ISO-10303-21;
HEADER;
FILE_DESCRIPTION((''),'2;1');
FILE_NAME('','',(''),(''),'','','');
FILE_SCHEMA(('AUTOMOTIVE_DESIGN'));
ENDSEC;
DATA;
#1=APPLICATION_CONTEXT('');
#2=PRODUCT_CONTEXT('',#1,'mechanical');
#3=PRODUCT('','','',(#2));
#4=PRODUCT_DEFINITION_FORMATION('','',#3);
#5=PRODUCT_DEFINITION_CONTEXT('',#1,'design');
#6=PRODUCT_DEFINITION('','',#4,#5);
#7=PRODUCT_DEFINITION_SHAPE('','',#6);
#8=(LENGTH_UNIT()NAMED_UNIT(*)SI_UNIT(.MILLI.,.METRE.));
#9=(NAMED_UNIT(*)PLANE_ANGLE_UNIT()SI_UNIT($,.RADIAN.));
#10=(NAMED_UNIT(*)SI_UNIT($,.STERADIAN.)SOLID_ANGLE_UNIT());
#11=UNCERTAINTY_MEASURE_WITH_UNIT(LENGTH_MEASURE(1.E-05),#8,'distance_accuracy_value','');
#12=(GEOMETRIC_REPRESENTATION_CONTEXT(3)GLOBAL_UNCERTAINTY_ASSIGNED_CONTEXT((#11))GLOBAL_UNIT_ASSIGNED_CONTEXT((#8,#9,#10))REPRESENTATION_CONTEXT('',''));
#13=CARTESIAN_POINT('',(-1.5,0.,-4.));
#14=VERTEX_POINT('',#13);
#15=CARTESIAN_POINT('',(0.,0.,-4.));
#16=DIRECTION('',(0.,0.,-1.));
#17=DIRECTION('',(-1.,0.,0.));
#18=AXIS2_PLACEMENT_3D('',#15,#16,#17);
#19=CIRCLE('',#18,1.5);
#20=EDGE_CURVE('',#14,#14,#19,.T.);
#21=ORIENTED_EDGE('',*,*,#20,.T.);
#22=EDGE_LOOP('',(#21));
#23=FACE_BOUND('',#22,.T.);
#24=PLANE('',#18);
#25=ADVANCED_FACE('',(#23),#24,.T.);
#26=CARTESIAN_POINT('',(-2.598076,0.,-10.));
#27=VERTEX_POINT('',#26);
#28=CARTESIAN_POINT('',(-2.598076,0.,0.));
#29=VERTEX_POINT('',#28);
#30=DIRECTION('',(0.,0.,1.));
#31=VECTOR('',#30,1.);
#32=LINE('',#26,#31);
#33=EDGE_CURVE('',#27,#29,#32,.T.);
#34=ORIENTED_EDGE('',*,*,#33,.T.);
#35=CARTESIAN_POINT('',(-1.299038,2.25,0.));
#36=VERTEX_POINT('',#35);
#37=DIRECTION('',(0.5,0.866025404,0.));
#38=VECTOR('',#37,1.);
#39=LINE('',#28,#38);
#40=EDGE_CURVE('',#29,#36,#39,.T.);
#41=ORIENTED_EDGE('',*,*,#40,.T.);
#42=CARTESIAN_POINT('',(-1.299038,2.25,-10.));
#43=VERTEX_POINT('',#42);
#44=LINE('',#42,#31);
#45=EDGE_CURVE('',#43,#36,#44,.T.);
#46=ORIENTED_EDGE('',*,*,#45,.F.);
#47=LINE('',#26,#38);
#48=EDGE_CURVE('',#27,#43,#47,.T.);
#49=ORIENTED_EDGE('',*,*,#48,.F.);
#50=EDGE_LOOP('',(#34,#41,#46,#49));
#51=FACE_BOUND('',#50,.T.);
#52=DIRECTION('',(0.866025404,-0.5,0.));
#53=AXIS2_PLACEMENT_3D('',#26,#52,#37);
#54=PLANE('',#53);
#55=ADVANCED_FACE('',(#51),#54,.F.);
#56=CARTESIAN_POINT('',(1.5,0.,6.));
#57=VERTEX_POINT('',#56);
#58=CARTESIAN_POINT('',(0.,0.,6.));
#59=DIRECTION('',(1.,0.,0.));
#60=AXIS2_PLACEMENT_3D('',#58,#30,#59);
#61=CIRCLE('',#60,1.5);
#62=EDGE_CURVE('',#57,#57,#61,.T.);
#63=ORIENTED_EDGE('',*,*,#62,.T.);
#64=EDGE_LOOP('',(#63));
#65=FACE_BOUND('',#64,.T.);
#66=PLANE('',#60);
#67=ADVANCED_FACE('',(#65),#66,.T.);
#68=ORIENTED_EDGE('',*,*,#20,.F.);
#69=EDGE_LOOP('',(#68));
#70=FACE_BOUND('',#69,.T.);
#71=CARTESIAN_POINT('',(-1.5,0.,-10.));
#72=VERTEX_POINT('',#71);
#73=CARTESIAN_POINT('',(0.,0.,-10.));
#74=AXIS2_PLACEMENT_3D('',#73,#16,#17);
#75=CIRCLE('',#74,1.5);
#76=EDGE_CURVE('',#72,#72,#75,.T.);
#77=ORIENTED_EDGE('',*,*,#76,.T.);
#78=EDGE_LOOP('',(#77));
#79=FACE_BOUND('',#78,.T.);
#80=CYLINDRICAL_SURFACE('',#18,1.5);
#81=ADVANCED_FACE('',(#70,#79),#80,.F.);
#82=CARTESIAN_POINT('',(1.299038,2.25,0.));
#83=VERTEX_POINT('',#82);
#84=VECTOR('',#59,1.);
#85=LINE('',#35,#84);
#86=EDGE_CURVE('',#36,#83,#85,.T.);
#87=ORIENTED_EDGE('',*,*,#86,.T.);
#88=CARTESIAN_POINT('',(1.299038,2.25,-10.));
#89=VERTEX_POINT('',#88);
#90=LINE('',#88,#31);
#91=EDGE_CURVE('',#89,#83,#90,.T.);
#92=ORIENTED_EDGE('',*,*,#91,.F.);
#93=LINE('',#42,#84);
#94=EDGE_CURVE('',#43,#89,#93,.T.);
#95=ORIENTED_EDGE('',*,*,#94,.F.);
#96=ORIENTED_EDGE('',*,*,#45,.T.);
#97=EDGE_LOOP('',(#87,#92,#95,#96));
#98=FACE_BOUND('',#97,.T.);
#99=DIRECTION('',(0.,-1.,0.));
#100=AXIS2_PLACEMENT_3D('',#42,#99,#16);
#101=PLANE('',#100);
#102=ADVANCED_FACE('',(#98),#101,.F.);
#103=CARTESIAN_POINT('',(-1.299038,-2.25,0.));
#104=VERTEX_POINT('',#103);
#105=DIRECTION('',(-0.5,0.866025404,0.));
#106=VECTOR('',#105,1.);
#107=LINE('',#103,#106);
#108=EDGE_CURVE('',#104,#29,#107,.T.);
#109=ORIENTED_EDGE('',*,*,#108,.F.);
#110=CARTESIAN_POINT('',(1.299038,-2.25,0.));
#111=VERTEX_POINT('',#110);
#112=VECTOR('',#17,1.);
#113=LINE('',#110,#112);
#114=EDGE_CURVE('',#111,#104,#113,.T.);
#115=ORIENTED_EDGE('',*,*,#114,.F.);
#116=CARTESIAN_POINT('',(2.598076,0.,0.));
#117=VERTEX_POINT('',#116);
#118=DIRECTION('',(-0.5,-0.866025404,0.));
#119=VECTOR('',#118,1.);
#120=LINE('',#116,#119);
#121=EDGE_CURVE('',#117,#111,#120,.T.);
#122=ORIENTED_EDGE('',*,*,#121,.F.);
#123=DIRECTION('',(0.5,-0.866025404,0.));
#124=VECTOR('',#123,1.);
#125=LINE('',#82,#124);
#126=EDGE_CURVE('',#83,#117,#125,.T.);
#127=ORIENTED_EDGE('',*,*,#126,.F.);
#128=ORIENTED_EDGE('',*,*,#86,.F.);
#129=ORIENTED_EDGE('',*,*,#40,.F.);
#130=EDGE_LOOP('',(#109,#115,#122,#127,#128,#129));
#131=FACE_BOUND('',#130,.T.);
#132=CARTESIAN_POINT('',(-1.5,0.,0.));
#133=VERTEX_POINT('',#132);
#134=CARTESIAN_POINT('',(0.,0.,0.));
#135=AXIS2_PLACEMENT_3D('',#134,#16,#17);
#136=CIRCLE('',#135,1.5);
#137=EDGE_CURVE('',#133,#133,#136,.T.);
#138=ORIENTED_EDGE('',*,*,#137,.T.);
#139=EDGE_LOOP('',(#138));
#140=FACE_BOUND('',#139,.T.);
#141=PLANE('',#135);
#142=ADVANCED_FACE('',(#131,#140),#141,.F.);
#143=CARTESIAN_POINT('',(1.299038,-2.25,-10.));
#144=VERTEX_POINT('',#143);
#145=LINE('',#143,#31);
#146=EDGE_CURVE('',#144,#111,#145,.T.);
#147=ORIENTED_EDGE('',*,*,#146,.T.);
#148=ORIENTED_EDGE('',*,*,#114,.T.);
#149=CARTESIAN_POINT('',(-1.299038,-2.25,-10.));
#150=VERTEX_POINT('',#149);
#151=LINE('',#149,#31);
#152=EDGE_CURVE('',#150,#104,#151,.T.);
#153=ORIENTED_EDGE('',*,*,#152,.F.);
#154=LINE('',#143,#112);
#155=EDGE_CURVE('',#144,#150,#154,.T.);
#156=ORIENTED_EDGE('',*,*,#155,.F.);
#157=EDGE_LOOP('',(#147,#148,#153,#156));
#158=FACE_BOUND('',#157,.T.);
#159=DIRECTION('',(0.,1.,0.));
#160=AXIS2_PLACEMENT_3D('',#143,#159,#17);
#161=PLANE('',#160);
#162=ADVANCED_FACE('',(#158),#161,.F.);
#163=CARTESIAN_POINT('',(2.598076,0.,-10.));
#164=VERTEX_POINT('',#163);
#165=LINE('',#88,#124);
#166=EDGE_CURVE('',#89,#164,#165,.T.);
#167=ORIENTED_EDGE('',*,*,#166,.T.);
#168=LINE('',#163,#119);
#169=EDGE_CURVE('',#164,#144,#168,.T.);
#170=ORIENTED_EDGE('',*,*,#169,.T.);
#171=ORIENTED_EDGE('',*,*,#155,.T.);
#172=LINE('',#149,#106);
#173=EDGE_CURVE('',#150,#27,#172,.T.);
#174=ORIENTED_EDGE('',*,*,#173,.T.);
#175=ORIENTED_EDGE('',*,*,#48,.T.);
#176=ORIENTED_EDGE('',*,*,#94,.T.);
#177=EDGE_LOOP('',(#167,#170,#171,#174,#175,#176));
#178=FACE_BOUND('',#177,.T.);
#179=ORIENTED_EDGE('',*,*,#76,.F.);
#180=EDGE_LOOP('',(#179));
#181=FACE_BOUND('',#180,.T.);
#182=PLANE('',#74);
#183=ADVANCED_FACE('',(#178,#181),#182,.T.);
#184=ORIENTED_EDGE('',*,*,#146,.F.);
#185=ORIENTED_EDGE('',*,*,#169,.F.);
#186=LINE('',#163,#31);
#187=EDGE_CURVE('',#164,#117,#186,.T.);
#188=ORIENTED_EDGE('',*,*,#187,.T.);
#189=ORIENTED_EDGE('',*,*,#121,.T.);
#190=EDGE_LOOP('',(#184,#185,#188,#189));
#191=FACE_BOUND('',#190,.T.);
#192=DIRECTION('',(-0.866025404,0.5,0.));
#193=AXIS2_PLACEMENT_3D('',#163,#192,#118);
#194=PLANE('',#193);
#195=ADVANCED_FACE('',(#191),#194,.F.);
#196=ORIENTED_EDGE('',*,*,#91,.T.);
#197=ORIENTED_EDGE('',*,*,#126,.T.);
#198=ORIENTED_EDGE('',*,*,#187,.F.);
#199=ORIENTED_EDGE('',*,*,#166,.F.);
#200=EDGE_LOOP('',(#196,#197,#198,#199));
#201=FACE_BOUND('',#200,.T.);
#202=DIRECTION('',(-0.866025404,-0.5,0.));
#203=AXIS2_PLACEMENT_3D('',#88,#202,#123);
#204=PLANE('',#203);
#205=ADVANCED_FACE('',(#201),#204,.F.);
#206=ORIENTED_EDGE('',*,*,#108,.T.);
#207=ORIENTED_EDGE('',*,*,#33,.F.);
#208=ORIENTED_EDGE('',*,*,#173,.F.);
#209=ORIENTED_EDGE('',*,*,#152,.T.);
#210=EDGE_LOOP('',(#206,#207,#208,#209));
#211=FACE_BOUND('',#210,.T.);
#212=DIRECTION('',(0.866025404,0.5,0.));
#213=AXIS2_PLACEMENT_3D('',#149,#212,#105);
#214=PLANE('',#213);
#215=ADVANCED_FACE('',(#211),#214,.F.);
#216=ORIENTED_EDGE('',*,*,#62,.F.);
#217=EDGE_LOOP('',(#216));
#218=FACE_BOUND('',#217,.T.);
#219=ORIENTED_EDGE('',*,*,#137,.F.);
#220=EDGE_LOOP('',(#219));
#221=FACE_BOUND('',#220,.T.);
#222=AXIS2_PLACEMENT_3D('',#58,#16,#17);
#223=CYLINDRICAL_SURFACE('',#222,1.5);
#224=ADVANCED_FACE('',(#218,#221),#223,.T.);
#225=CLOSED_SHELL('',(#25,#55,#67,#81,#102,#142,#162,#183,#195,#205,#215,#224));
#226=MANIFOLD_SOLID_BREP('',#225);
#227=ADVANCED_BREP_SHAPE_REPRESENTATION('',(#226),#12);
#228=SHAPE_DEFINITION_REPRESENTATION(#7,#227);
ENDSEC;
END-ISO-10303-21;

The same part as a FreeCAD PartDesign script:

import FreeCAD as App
import Part
import Sketcher
from FreeCAD import Vector
Q = App.Units.Quantity

doc = App.newDocument("Part")
params = doc.addObject("Spreadsheet::Sheet", "Params")
for row, (alias, value) in enumerate([
    ("sketch1_diameter", "3 mm"),
    ("pad1_length", "6 mm"),
    ("pad2_length", "10 mm"),
    ("sketch3_diameter", "3 mm"),
    ("pocket1_length", "6 mm"),
], start=1):
    params.set(f"A{row}", alias)
    params.set(f"B{row}", "=" + value)
    params.setAlias(f"B{row}", alias)

body = doc.addObject("PartDesign::Body", "Body")

sketch1 = doc.addObject("Sketcher::SketchObject", "Sketch")
body.addObject(sketch1)
sketch1.AttachmentSupport = (doc.XY_Plane, [""])
sketch1.MapMode = "FlatFace"
sketch1.addGeometry(Part.Circle(Vector(0, 0, 0), Vector(0, 0, 1), 1.5), False)
sketch1.addConstraint([
    Sketcher.Constraint("Coincident", 0, 3, -1, 1),
    Sketcher.Constraint("Diameter", 0, Q("3 mm")),
])
sketch1.setExpression("Constraints[1]", "Params.sketch1_diameter")
pad1 = doc.addObject("PartDesign::Pad", "Pad")
body.addObject(pad1)
pad1.Profile = sketch1
pad1.setExpression("Length", "Params.pad1_length")

sketch2 = doc.addObject("Sketcher::SketchObject", "Sketch001")
body.addObject(sketch2)
sketch2.AttachmentSupport = (doc.XY_Plane, [""])
sketch2.MapMode = "FlatFace"
sketch2.addGeometry([
    Part.LineSegment(Vector(-1.299038, 2.25, 0), Vector(1.299038, 2.25, 0)),
    Part.LineSegment(Vector(1.299038, 2.25, 0), Vector(2.598076, 0, 0)),
    Part.LineSegment(Vector(2.598076, 0, 0), Vector(1.299038, -2.25, 0)),
    Part.LineSegment(Vector(1.299038, -2.25, 0), Vector(-1.299038, -2.25, 0)),
    Part.LineSegment(Vector(-1.299038, -2.25, 0), Vector(-2.598076, 0, 0)),
    Part.LineSegment(Vector(-2.598076, 0, 0), Vector(-1.299038, 2.25, 0)),
], False)
sketch2.addConstraint([
    Sketcher.Constraint("Coincident", 0, 2, 1, 1),
    Sketcher.Constraint("Coincident", 1, 2, 2, 1),
    Sketcher.Constraint("Coincident", 2, 2, 3, 1),
    Sketcher.Constraint("Coincident", 3, 2, 4, 1),
    Sketcher.Constraint("Coincident", 4, 2, 5, 1),
    Sketcher.Constraint("Coincident", 5, 2, 0, 1),
    Sketcher.Constraint("Horizontal", 0),
    Sketcher.Constraint("Horizontal", 3),
    Sketcher.Constraint("Symmetric", 0, 2, 3, 2, -1, 1),
    Sketcher.Constraint("Symmetric", 1, 2, 4, 2, -1, 1),
    Sketcher.Constraint("PointOnObject", 1, 2, -1),
    Sketcher.Constraint("Parallel", 2, 5),
    Sketcher.Constraint("Vertical", 0, 2, 2, 2),
    Sketcher.Constraint("Angle", 1, Q("-60 deg")),
    Sketcher.Constraint("DistanceY", 2, 2, 0, 2, Q("4.5 mm")),
    Sketcher.Constraint("DistanceX", 0, 1, 0, 2, Q("2.598076 mm")),
])
pad2 = doc.addObject("PartDesign::Pad", "Pad001")
body.addObject(pad2)
pad2.Profile = sketch2
pad2.setExpression("Length", "Params.pad2_length")
pad2.Reversed = True

sketch3 = doc.addObject("Sketcher::SketchObject", "Sketch002")
body.addObject(sketch3)
sketch3.AttachmentSupport = (doc.XY_Plane, [""])
sketch3.MapMode = "FlatFace"
sketch3.AttachmentOffset = App.Placement(Vector(0, 0, -10), App.Rotation())
sketch3.addGeometry(Part.Circle(Vector(0, 0, 0), Vector(0, 0, 1), 1.5), False)
sketch3.addConstraint([
    Sketcher.Constraint("Coincident", 0, 3, -1, 1),
    Sketcher.Constraint("Diameter", 0, Q("3 mm")),
])
sketch3.setExpression("Constraints[1]", "Params.sketch3_diameter")
pocket1 = doc.addObject("PartDesign::Pocket", "Pocket")
body.addObject(pocket1)
pocket1.Profile = sketch3
pocket1.setExpression("Length", "Params.pocket1_length")
pocket1.Reversed = True

doc.recompute()
